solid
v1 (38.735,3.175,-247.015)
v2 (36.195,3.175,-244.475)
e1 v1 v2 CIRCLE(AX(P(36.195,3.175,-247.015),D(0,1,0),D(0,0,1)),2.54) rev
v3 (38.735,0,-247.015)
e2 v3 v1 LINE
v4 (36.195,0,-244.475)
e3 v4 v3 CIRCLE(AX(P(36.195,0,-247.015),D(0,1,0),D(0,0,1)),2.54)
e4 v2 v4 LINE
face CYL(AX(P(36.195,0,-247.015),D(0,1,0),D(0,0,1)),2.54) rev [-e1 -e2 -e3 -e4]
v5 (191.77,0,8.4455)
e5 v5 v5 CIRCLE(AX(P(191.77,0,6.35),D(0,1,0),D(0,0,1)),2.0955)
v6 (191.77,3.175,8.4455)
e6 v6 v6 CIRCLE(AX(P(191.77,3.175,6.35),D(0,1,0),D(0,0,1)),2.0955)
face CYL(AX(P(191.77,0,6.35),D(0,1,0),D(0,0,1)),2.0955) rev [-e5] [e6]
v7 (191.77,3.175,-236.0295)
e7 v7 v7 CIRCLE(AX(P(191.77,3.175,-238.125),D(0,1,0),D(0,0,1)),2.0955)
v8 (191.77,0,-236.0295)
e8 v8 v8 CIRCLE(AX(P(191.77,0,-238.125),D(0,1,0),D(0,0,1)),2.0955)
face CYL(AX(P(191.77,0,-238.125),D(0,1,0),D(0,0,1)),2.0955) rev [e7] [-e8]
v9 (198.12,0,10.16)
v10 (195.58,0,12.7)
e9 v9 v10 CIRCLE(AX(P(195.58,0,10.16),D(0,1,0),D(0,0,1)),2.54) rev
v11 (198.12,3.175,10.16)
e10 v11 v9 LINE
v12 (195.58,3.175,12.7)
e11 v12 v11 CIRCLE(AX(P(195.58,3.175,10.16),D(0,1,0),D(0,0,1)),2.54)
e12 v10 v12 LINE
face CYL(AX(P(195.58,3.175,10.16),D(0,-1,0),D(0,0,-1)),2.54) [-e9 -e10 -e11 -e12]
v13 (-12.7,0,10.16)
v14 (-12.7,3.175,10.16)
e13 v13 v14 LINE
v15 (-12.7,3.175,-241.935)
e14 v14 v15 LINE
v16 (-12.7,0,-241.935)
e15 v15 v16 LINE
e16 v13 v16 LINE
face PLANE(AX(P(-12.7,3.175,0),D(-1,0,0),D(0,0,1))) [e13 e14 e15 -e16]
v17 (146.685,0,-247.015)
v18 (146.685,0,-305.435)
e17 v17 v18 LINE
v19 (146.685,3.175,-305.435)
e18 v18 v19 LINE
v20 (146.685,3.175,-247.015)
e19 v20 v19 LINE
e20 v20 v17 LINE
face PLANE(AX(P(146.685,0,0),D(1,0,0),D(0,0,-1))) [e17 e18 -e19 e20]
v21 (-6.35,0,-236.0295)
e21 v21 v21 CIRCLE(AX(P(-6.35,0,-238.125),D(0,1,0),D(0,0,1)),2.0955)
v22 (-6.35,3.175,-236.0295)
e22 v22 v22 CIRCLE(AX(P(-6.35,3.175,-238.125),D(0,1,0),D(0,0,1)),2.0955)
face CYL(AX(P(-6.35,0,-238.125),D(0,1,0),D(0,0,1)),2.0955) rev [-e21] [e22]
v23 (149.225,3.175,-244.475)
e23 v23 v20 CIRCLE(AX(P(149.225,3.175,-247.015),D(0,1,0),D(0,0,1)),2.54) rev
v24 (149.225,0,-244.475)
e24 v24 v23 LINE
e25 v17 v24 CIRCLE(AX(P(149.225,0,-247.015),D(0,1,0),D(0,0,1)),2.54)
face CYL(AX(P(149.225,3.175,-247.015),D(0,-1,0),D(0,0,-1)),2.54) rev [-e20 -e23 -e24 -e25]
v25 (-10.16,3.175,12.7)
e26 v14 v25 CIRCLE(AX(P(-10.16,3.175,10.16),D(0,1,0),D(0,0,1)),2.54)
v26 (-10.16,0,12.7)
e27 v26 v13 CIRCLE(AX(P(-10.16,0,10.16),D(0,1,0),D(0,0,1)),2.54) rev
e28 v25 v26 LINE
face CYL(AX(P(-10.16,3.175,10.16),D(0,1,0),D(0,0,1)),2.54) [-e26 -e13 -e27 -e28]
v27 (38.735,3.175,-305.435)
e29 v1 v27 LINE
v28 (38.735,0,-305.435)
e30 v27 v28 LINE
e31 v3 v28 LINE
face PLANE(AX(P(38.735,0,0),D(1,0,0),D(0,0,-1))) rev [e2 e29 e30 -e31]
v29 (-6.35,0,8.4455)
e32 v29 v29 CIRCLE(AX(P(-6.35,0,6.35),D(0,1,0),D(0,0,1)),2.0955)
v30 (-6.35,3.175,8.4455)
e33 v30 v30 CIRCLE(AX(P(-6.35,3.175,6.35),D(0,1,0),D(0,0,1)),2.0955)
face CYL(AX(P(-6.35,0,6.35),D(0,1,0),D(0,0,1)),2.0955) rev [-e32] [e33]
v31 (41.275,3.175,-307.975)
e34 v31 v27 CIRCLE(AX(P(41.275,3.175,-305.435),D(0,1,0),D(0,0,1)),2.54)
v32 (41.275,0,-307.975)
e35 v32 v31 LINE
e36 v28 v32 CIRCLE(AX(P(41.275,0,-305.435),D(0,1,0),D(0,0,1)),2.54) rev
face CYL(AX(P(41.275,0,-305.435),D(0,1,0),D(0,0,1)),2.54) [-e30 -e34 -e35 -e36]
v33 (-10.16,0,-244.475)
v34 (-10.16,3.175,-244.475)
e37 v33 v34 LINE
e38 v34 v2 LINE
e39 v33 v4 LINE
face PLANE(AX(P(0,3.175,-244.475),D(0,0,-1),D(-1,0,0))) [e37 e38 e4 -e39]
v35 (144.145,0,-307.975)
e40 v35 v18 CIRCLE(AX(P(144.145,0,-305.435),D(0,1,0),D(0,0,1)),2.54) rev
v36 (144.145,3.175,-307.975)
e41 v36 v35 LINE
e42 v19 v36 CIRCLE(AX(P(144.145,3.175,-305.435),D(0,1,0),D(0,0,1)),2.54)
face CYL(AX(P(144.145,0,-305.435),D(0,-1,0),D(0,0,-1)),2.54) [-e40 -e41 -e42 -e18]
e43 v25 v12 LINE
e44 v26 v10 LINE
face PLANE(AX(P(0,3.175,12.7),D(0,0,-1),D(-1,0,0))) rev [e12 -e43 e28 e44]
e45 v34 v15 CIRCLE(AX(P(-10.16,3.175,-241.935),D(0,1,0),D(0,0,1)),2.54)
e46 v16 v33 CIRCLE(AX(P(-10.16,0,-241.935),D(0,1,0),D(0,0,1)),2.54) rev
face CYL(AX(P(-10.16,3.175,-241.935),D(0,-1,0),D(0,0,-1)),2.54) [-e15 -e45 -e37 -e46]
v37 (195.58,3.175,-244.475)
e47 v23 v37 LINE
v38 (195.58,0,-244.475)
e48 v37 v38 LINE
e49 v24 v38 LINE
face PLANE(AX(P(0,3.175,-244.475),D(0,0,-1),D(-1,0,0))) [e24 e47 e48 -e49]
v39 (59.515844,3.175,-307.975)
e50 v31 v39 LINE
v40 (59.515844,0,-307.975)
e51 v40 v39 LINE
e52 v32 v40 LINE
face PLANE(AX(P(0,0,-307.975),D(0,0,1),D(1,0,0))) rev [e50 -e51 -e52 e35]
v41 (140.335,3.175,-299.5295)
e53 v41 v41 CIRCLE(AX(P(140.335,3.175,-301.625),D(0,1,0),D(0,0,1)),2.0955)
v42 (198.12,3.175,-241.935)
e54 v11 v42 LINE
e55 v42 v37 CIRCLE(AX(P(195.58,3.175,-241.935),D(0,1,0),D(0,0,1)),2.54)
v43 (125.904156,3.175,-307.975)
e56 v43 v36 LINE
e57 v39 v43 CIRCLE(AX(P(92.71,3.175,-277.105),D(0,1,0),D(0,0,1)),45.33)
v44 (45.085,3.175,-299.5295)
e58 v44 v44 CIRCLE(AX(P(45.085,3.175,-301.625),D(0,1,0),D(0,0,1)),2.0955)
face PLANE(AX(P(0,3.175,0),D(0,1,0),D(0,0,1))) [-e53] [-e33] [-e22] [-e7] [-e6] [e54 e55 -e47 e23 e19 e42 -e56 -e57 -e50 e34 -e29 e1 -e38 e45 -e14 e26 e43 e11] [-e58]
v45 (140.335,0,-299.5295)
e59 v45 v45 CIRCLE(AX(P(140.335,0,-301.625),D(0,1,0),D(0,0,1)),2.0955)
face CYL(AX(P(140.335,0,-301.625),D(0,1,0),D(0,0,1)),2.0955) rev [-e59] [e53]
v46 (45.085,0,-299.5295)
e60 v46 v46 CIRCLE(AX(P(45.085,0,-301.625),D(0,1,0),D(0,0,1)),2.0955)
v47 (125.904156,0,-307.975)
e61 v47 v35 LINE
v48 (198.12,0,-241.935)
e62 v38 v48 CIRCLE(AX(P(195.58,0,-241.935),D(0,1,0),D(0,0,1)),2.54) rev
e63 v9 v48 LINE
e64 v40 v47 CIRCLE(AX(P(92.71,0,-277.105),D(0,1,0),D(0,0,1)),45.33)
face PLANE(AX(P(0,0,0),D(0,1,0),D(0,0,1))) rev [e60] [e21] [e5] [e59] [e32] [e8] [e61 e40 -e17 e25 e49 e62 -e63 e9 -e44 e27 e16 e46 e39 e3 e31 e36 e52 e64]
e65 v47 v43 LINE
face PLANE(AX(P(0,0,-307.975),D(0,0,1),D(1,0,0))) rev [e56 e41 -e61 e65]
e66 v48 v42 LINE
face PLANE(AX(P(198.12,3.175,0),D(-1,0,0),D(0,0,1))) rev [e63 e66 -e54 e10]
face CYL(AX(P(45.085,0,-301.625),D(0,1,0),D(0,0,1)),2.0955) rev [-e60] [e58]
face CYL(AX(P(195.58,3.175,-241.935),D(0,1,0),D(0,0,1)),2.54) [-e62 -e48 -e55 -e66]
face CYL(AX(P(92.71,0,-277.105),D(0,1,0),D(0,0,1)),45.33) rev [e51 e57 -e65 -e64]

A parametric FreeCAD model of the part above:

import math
import FreeCAD as App
import Part
import Sketcher
Q = App.Units.Quantity


def edges_at(feature, points):
    """Names of the edges that pass closest to the given points."""
    edges = feature.Shape.Edges
    near = lambda p: min(range(len(edges)), key=lambda i: edges[i].distToShape(Part.Vertex(*p))[0])
    return sorted({f"Edge{near(p) + 1}" for p in points})

doc = App.newDocument("Part")
body = doc.addObject("PartDesign::Body", "Body")

# Sketch on XZ plane
sketch1 = body.newObject("Sketcher::SketchObject", "Sketch")
sketch1.AttachmentSupport = (doc.getObject("XZ_Plane"), [""])
sketch1.MapMode = "FlatFace"
sketch1.addGeometry(Part.LineSegment(App.Vector(-13, -244, 0), App.Vector(-13, 13, 0)), False)
sketch1.addGeometry(Part.LineSegment(App.Vector(-13, 13, 0), App.Vector(198, 13, 0)), False)
sketch1.addGeometry(Part.LineSegment(App.Vector(198, 13, 0), App.Vector(198, -244, 0)), False)
sketch1.addGeometry(Part.LineSegment(App.Vector(198, -244, 0), App.Vector(-13, -244, 0)), False)
sketch1.addConstraint(Sketcher.Constraint("Coincident", 0, 2, 1, 1))
sketch1.addConstraint(Sketcher.Constraint("Coincident", 1, 2, 2, 1))
sketch1.addConstraint(Sketcher.Constraint("Coincident", 2, 2, 3, 1))
sketch1.addConstraint(Sketcher.Constraint("Coincident", 3, 2, 0, 1))
sketch1.addConstraint(Sketcher.Constraint("Vertical", 0))
sketch1.addConstraint(Sketcher.Constraint("Horizontal", 1))
sketch1.addConstraint(Sketcher.Constraint("Vertical", 2))
sketch1.addConstraint(Sketcher.Constraint("Horizontal", 3))
sketch1.addConstraint(Sketcher.Constraint("DistanceX", 1, 1, 1, 2, Q("8.3 in")))
sketch1.addConstraint(Sketcher.Constraint("DistanceX", 0, 2, -1, 1, Q("0.5 in")))
sketch1.addConstraint(Sketcher.Constraint("DistanceY", -1, 1, 0, 2, Q("0.5 in")))
sketch1.addConstraint(Sketcher.Constraint("DistanceY", 0, 1, 0, 2, Q("10.125 in")))
pad1 = body.newObject("PartDesign::Pad", "Pad")
pad1.Profile = sketch1
pad1.Length = Q("0.125 in")
pad1.Reversed = True

# Sketch on XZ plane
sketch2 = body.newObject("Sketcher::SketchObject", "Sketch001")
sketch2.AttachmentSupport = (doc.getObject("XZ_Plane"), [""])
sketch2.MapMode = "FlatFace"
sketch2.AttachmentOffset = App.Placement(App.Vector(0, 0, -0.125 * 25.4), App.Rotation())
sketch2.addGeometry(Part.ArcOfCircle(Part.Circle(App.Vector(92.7, -277.1, 0), App.Vector(0, 0, 1), 45.3), math.radians(90), math.radians(134)), False)
sketch2.addGeometry(Part.ArcOfCircle(Part.Circle(App.Vector(92.7, -277.1, 0), App.Vector(0, 0, 1), 45.3), math.radians(46), math.radians(90)), False)
sketch2.addGeometry(Part.LineSegment(App.Vector(124.2, -244.5, 0), App.Vector(61.2, -244.5, 0)), False)
sketch2.addGeometry(Part.Circle(App.Vector(191.8, -238.1, 0), App.Vector(0, 0, 1), 2.1), False)
sketch2.addGeometry(Part.Circle(App.Vector(191.8, 6.3, 0), App.Vector(0, 0, 1), 2.1), False)
sketch2.addGeometry(Part.Circle(App.Vector(-6.3, 6.3, 0), App.Vector(0, 0, 1), 2.1), False)
sketch2.addGeometry(Part.Circle(App.Vector(-6.3, -238.1, 0), App.Vector(0, 0, 1), 2.1), False)
sketch2.addConstraint(Sketcher.Constraint("Tangent", 0, 1, 1, 2))
sketch2.addConstraint(Sketcher.Constraint("Coincident", 1, 1, 2, 1))
sketch2.addConstraint(Sketcher.Constraint("Coincident", 2, 2, 0, 2))
sketch2.addConstraint(Sketcher.Constraint("Horizontal", 2))
sketch2.addConstraint(Sketcher.Constraint("Equal", 0, 1))
sketch2.addConstraint(Sketcher.Constraint("Equal", 3, 4))
sketch2.addConstraint(Sketcher.Constraint("Equal", 4, 5))
sketch2.addConstraint(Sketcher.Constraint("Equal", 5, 6))
sketch2.addConstraint(Sketcher.Constraint("Horizontal", 4, 3, 5, 3))
sketch2.addConstraint(Sketcher.Constraint("Horizontal", 3, 3, 6, 3))
sketch2.addConstraint(Sketcher.Constraint("Vertical", 3, 3, 4, 3))
sketch2.addConstraint(Sketcher.Constraint("Vertical", 5, 3, 6, 3))
sketch2.addConstraint(Sketcher.Constraint("Vertical", 1, 3, 0, 1))
sketch2.addConstraint(Sketcher.Constraint("Diameter", 3, Q("0.165 in")))
sketch2.addConstraint(Sketcher.Constraint("DistanceX", 0, 3, 3, 3, Q("3.9 in")))
sketch2.addConstraint(Sketcher.Constraint("DistanceX", 5, 3, 4, 3, Q("7.8 in")))
sketch2.addConstraint(Sketcher.Constraint("DistanceY", 1, 1, 0, 1, Q("0.5 in")))
sketch2.addConstraint(Sketcher.Constraint("DistanceX", -1, 1, 0, 3, Q("3.65 in")))
sketch2.addConstraint(Sketcher.Constraint("DistanceY", -1, 1, 4, 3, Q("0.25 in")))
sketch2.addConstraint(Sketcher.Constraint("Radius", 0, 45.33))
sketch2.addConstraint(Sketcher.Constraint("DistanceY", 6, 3, 0, 1, Q("0.25 in")))
sketch2.addConstraint(Sketcher.Constraint("DistanceY", 3, 3, -1, 1, Q("9.375 in")))
pocket1 = body.newObject("PartDesign::Pocket", "Pocket")
pocket1.Profile = sketch2
pocket1.Length = Q("0.125 in")
pocket1.Reversed = True

# Sketch on XZ plane
sketch3 = body.newObject("Sketcher::SketchObject", "Sketch002")
sketch3.AttachmentSupport = (doc.getObject("XZ_Plane"), [""])
sketch3.MapMode = "FlatFace"
sketch3.AttachmentOffset = App.Placement(App.Vector(0, 0, -0.125 * 25.4), App.Rotation())
sketch3.addGeometry(Part.LineSegment(App.Vector(124.2, -244.5, 0), App.Vector(146.7, -244.5, 0)), False)
sketch3.addGeometry(Part.LineSegment(App.Vector(146.7, -244.5, 0), App.Vector(146.7, -308, 0)), False)
sketch3.addGeometry(Part.LineSegment(App.Vector(146.7, -308, 0), App.Vector(125.9, -308, 0)), False)
sketch3.addGeometry(Part.ArcOfCircle(Part.Circle(App.Vector(92.7, -277.1, 0), App.Vector(0, 0, 1), 45.3), math.radians(-43), math.radians(46)), False)
sketch3.addGeometry(Part.ArcOfCircle(Part.Circle(App.Vector(140.3, -301.6, 0), App.Vector(0, 0, 1), 2.1), math.radians(0), math.radians(270)), False)
sketch3.addGeometry(Part.ArcOfCircle(Part.Circle(App.Vector(140.3, -301.6, 0), App.Vector(0, 0, 1), 2.1), math.radians(-90), math.radians(0)), False)
sketch3.addGeometry(Part.LineSegment(App.Vector(38.7, -244.5, 0), App.Vector(61.2, -244.5, 0)), False)
sketch3.addGeometry(Part.ArcOfCircle(Part.Circle(App.Vector(92.7, -277.1, 0), App.Vector(0, 0, 1), 45.3), math.radians(134), math.radians(223)), False)
sketch3.addGeometry(Part.LineSegment(App.Vector(59.5, -308, 0), App.Vector(38.7, -308, 0)), False)
sketch3.addGeometry(Part.LineSegment(App.Vector(38.7, -308, 0), App.Vector(38.7, -244.5, 0)), False)
sketch3.addGeometry(Part.ArcOfCircle(Part.Circle(App.Vector(45.1, -301.6, 0), App.Vector(0, 0, 1), 2.1), math.radians(-90), math.radians(0)), False)
sketch3.addGeometry(Part.ArcOfCircle(Part.Circle(App.Vector(45.1, -301.6, 0), App.Vector(0, 0, 1), 2.1), math.radians(0), math.radians(180)), False)
sketch3.addGeometry(Part.ArcOfCircle(Part.Circle(App.Vector(45.1, -301.6, 0), App.Vector(0, 0, 1), 2.1), math.radians(180), math.radians(270)), False)
sketch3.addConstraint(Sketcher.Constraint("Coincident", 0, 2, 1, 1))
sketch3.addConstraint(Sketcher.Constraint("Coincident", 1, 2, 2, 1))
sketch3.addConstraint(Sketcher.Constraint("Coincident", 2, 2, 3, 1))
sketch3.addConstraint(Sketcher.Constraint("Coincident", 3, 2, 0, 1))
sketch3.addConstraint(Sketcher.Constraint("Tangent", 4, 1, 5, 2))
sketch3.addConstraint(Sketcher.Constraint("Coincident", 5, 1, 4, 2))
sketch3.addConstraint(Sketcher.Constraint("Coincident", 6, 2, 7, 1))
sketch3.addConstraint(Sketcher.Constraint("Coincident", 7, 2, 8, 1))
sketch3.addConstraint(Sketcher.Constraint("Coincident", 8, 2, 9, 1))
sketch3.addConstraint(Sketcher.Constraint("Coincident", 9, 2, 6, 1))
sketch3.addConstraint(Sketcher.Constraint("Tangent", 10, 2, 11, 1))
sketch3.addConstraint(Sketcher.Constraint("Tangent", 11, 2, 12, 1))
sketch3.addConstraint(Sketcher.Constraint("Tangent", 12, 2, 10, 1))
sketch3.addConstraint(Sketcher.Constraint("Horizontal", 0))
sketch3.addConstraint(Sketcher.Constraint("Vertical", 1))
sketch3.addConstraint(Sketcher.Constraint("Horizontal", 2))
sketch3.addConstraint(Sketcher.Constraint("Horizontal", 6))
sketch3.addConstraint(Sketcher.Constraint("Horizontal", 8))
sketch3.addConstraint(Sketcher.Constraint("Vertical", 9))
sketch3.addConstraint(Sketcher.Constraint("Coincident", 7, 3, 3, 3))
sketch3.addConstraint(Sketcher.Constraint("Equal", 3, 7))
sketch3.addConstraint(Sketcher.Constraint("Equal", 5, 10))
sketch3.addConstraint(Sketcher.Constraint("Horizontal", 5, 3, 10, 3))
sketch3.addConstraint(Sketcher.Constraint("Horizontal", 12, 3, 4, 1))
sketch3.addConstraint(Sketcher.Constraint("Horizontal", 3, 2, 6, 2))
sketch3.addConstraint(Sketcher.Constraint("Horizontal", 2, 2, 7, 2))
sketch3.addConstraint(Sketcher.Constraint("Horizontal", 4, 1, 10, 2))
sketch3.addConstraint(Sketcher.Constraint("Horizontal", 10, 2, 11, 2))
sketch3.addConstraint(Sketcher.Constraint("Vertical", 4, 3, 5, 1))
sketch3.addConstraint(Sketcher.Constraint("Vertical", 11, 3, 12, 2))
sketch3.addConstraint(Sketcher.Constraint("Equal", 0, 6))
sketch3.addConstraint(Sketcher.Constraint("DistanceY", 1, 2, 1, 1, Q("2.5 in")))
sketch3.addConstraint(Sketcher.Constraint("DistanceX", 10, 3, 0, 2, Q("4 in")))
sketch3.addConstraint(Sketcher.Constraint("Radius", 4, Q("0.0825 in")))
sketch3.addConstraint(Sketcher.Constraint("DistanceX", -1, 1, 3, 3, Q("3.65 in")))
sketch3.addConstraint(Sketcher.Constraint("Radius", 3, 45.33))
sketch3.addConstraint(Sketcher.Constraint("DistanceX", 10, 3, 4, 3, Q("3.75 in")))
sketch3.addConstraint(Sketcher.Constraint("DistanceY", 4, 3, 0, 2, Q("2.25 in")))
sketch3.addConstraint(Sketcher.Constraint("DistanceX", 8, 2, 10, 3, Q("0.25 in")))
sketch3.addConstraint(Sketcher.Constraint("DistanceY", 4, 3, -1, 1, Q("11.875 in")))
sketch3.addConstraint(Sketcher.Constraint("DistanceY", 3, 3, -1, 1, 277.105))
pad2 = body.newObject("PartDesign::Pad", "Pad001")
pad2.Profile = sketch3
pad2.Length = Q("0.125 in")
doc.recompute()

fillet = body.newObject("PartDesign::Fillet", "Fillet")
fillet.Base = (pad2, edges_at(pad2, [
    (146.685, 1.587, -307.975),
    (146.685, 1.587, -244.475),
    (38.735, 1.587, -307.975),
    (38.735, 1.587, -244.475),
    (-12.7, 1.587, -244.475),
    (198.12, 1.587, -244.475),
    (198.12, 1.587, 12.7),
    (-12.7, 1.587, 12.7),
]))
fillet.Radius = Q("0.1 in")

doc.recompute()
